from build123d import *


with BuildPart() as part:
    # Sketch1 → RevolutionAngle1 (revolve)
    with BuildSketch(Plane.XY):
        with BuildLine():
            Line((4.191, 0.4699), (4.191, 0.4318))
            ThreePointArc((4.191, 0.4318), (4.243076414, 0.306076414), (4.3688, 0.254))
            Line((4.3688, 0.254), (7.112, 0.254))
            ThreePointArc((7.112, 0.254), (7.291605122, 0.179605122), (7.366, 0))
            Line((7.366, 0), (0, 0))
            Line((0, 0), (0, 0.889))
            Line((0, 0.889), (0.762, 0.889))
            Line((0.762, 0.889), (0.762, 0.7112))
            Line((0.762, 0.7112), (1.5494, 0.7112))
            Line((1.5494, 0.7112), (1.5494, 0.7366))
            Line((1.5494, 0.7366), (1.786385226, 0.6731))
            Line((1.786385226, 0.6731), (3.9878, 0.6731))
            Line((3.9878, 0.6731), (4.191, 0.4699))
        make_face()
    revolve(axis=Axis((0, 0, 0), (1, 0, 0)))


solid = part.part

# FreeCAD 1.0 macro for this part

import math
import FreeCAD as App
import Part
import Sketcher

V = App.Vector
Q = App.Units.Quantity

doc = App.newDocument("Part")
params = doc.addObject("Spreadsheet::Sheet", "Params")
for row, (alias, value) in enumerate([
    ("sketch1_radius", "0.01 in"),
    ("sketch1_radius2", "0.007 in"),
    ("sketch1_width", "0.03 in"),
    ("sketch1_width2", "0.29 in"),
    ("sketch1_width3", "0.031 in"),
    ("revolution_angle", "360 deg"),
], start=1):
    params.set(f"A{row}", alias)
    params.set(f"B{row}", "=" + value)
    params.setAlias(f"B{row}", alias)

body = doc.addObject("PartDesign::Body", "Body")

sketch1 = doc.addObject("Sketcher::SketchObject", "Sketch")
body.addObject(sketch1)
sketch1.AttachmentSupport = (doc.XY_Plane, [""])
sketch1.MapMode = "FlatFace"
sketch1.addGeometry(Part.LineSegment(V(4.191, 0.4318, 0), V(4.191, 0.4699, 0)), False)
sketch1.addGeometry(Part.LineSegment(V(4.191, 0.4699, 0), V(3.9878, 0.6731, 0)), False)
sketch1.addGeometry(Part.LineSegment(V(3.9878, 0.6731, 0), V(1.786385, 0.6731, 0)), False)
sketch1.addGeometry(Part.LineSegment(V(1.786385, 0.6731, 0), V(1.5494, 0.7366, 0)), False)
sketch1.addGeometry(Part.LineSegment(V(1.5494, 0.7366, 0), V(1.5494, 0.7112, 0)), False)
sketch1.addGeometry(Part.LineSegment(V(1.5494, 0.7112, 0), V(0.762, 0.7112, 0)), False)
sketch1.addGeometry(Part.LineSegment(V(0.762, 0.7112, 0), V(0.762, 0.889, 0)), False)
sketch1.addGeometry(Part.LineSegment(V(0.762, 0.889, 0), V(0, 0.889, 0)), False)
sketch1.addGeometry(Part.LineSegment(V(0, 0.889, 0), V(0, 0, 0)), False)
sketch1.addGeometry(Part.LineSegment(V(0, 0, 0), V(7.366, 0, 0)), False)
sketch1.addGeometry(Part.ArcOfCircle(Part.Circle(V(7.112, 0, 0), V(0, 0, 1), 0.254), math.radians(0), math.radians(90)), False)
sketch1.addGeometry(Part.LineSegment(V(7.112, 0.254, 0), V(4.3688, 0.254, 0)), False)
sketch1.addGeometry(Part.ArcOfCircle(Part.Circle(V(4.3688, 0.4318, 0), V(0, 0, 1), 0.1778), math.radians(180), math.radians(270)), False)
sketch1.addConstraint(Sketcher.Constraint("Coincident", 0, 2, 1, 1))
sketch1.addConstraint(Sketcher.Constraint("Coincident", 1, 2, 2, 1))
sketch1.addConstraint(Sketcher.Constraint("Coincident", 2, 2, 3, 1))
sketch1.addConstraint(Sketcher.Constraint("Coincident", 3, 2, 4, 1))
sketch1.addConstraint(Sketcher.Constraint("Coincident", 4, 2, 5, 1))
sketch1.addConstraint(Sketcher.Constraint("Coincident", 5, 2, 6, 1))
sketch1.addConstraint(Sketcher.Constraint("Coincident", 6, 2, 7, 1))
sketch1.addConstraint(Sketcher.Constraint("Coincident", 7, 2, 8, 1))
sketch1.addConstraint(Sketcher.Constraint("Coincident", 8, 2, 9, 1))
sketch1.addConstraint(Sketcher.Constraint("Coincident", 9, 2, 10, 1))
sketch1.addConstraint(Sketcher.Constraint("Tangent", 10, 2, 11, 1))
sketch1.addConstraint(Sketcher.Constraint("Tangent", 11, 2, 12, 2))
sketch1.addConstraint(Sketcher.Constraint("Tangent", 12, 1, 0, 1))
sketch1.addConstraint(Sketcher.Constraint("Vertical", 0))
sketch1.addConstraint(Sketcher.Constraint("Horizontal", 2))
sketch1.addConstraint(Sketcher.Constraint("Vertical", 4))
sketch1.addConstraint(Sketcher.Constraint("Horizontal", 5))
sketch1.addConstraint(Sketcher.Constraint("Vertical", 6))
sketch1.addConstraint(Sketcher.Constraint("Horizontal", 7))
sketch1.addConstraint(Sketcher.Constraint("Vertical", 8))
sketch1.addConstraint(Sketcher.Constraint("Horizontal", 9))
sketch1.addConstraint(Sketcher.Constraint("Horizontal", 11))
sketch1.addConstraint(Sketcher.Constraint("Coincident", 8, 2, -1, 1))
sketch1.addConstraint(Sketcher.Constraint("PointOnObject", 10, 3, -1))
sketch1.addConstraint(Sketcher.Constraint("Radius", 10, Q("0.01 in")))
sketch1.addConstraint(Sketcher.Constraint("Angle", 1, Q("135 deg")))
sketch1.addConstraint(Sketcher.Constraint("Angle", 3, Q("165 deg")))
sketch1.addConstraint(Sketcher.Constraint("Radius", 12, Q("0.007 in")))
sketch1.addConstraint(Sketcher.Constraint("DistanceX", 7, 2, 7, 1, Q("0.03 in")))
sketch1.addConstraint(Sketcher.Constraint("DistanceX", 9, 1, 9, 2, Q("0.29 in")))
sketch1.addConstraint(Sketcher.Constraint("DistanceX", 5, 2, 5, 1, Q("0.031 in")))
sketch1.addConstraint(Sketcher.Constraint("DistanceX", 11, 2, 11, 1, Q("0.108 in")))
sketch1.addConstraint(Sketcher.Constraint("DistanceY", 4, 2, 4, 1, Q("0.001 in")))
sketch1.addConstraint(Sketcher.Constraint("DistanceY", 6, 1, 6, 2, Q("0.007 in")))
sketch1.addConstraint(Sketcher.Constraint("DistanceY", 8, 2, 8, 1, Q("0.035 in")))
sketch1.addConstraint(Sketcher.Constraint("DistanceY", 0, 1, 0, 2, Q("0.0015 in")))
sketch1.addConstraint(Sketcher.Constraint("DistanceX", -1, 1, 1, 2, Q("0.157 in")))
sketch1.setExpression("Constraints[24]", "Params.sketch1_radius")
sketch1.setExpression("Constraints[27]", "Params.sketch1_radius2")
sketch1.setExpression("Constraints[28]", "Params.sketch1_width")
sketch1.setExpression("Constraints[29]", "Params.sketch1_width2")
sketch1.setExpression("Constraints[30]", "Params.sketch1_width3")
revolution = doc.addObject("PartDesign::Revolution", "Revolution")
body.addObject(revolution)
revolution.Profile = sketch1
revolution.ReferenceAxis = (sketch1, ["H_Axis"])
revolution.setExpression("Angle", "Params.revolution_angle")

doc.recompute()
